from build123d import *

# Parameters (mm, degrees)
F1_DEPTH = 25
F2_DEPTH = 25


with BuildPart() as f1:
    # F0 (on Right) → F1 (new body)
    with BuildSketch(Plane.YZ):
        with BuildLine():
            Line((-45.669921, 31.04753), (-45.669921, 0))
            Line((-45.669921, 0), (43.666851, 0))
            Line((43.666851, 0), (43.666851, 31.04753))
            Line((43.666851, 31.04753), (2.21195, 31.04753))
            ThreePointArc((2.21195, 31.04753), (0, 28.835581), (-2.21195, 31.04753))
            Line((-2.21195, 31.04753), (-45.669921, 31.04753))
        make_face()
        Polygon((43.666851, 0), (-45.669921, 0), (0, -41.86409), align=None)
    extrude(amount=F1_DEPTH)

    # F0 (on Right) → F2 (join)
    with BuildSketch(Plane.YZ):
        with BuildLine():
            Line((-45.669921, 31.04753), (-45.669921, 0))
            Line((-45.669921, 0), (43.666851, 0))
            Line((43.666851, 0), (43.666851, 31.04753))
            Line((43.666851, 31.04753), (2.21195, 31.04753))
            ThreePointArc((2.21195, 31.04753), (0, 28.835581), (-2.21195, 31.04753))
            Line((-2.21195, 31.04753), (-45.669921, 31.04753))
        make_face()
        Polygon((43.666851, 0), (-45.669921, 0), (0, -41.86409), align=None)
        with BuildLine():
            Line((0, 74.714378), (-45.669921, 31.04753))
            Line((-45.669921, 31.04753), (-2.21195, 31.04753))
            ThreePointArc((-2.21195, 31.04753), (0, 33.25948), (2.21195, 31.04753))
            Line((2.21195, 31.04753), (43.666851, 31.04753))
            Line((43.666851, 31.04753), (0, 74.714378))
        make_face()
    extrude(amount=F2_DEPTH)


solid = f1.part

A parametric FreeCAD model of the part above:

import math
import FreeCAD as App
import Part
import Sketcher

V = App.Vector
Q = App.Units.Quantity

doc = App.newDocument("Part")
body = doc.addObject("PartDesign::Body", "Body")

sketch1 = body.newObject("Sketcher::SketchObject", "Sketch")
sketch1.AttachmentSupport = (doc.getObject("YZ_Plane"), [""])
sketch1.MapMode = "FlatFace"
sketch1.addGeometry(Part.LineSegment(V(-45.7, 31, 0), V(-45.7, 0, 0)), False)
sketch1.addGeometry(Part.LineSegment(V(-45.7, 0, 0), V(0, -41.9, 0)), False)
sketch1.addGeometry(Part.LineSegment(V(0, -41.9, 0), V(43.7, 0, 0)), False)
sketch1.addGeometry(Part.LineSegment(V(43.7, 0, 0), V(43.7, 31, 0)), False)
sketch1.addGeometry(Part.LineSegment(V(43.7, 31, 0), V(2.2, 31, 0)), False)
sketch1.addGeometry(Part.ArcOfCircle(Part.Circle(V(0, 31, 0), V(0, 0, 1), 2.2), math.radians(-180), math.radians(0)), False)
sketch1.addGeometry(Part.LineSegment(V(-2.2, 31, 0), V(-45.7, 31, 0)), False)
sketch1.addConstraint(Sketcher.Constraint("Coincident", 0, 2, 1, 1))
sketch1.addConstraint(Sketcher.Constraint("Coincident", 1, 2, 2, 1))
sketch1.addConstraint(Sketcher.Constraint("Coincident", 2, 2, 3, 1))
sketch1.addConstraint(Sketcher.Constraint("Coincident", 3, 2, 4, 1))
sketch1.addConstraint(Sketcher.Constraint("Coincident", 4, 2, 5, 2))
sketch1.addConstraint(Sketcher.Constraint("Coincident", 5, 1, 6, 1))
sketch1.addConstraint(Sketcher.Constraint("Coincident", 6, 2, 0, 1))
sketch1.addConstraint(Sketcher.Constraint("Vertical", 0))
sketch1.addConstraint(Sketcher.Constraint("Vertical", 3))
sketch1.addConstraint(Sketcher.Constraint("Horizontal", 4))
sketch1.addConstraint(Sketcher.Constraint("Horizontal", 6))
sketch1.addConstraint(Sketcher.Constraint("Symmetric", 4, 2, 5, 1, -2))
sketch1.addConstraint(Sketcher.Constraint("PointOnObject", 0, 2, -1))
sketch1.addConstraint(Sketcher.Constraint("PointOnObject", 1, 2, -2))
sketch1.addConstraint(Sketcher.Constraint("PointOnObject", 2, 2, -1))
sketch1.addConstraint(Sketcher.Constraint("Horizontal", 5, 3, 3, 2))
sketch1.addConstraint(Sketcher.Constraint("Radius", 5, 2.21195))
sketch1.addConstraint(Sketcher.Constraint("DistanceX", 4, 2, 4, 1, 41.454901))
sketch1.addConstraint(Sketcher.Constraint("DistanceX", 6, 2, 6, 1, 43.457971))
sketch1.addConstraint(Sketcher.Constraint("DistanceY", 0, 2, 0, 1, 31.04753))
sketch1.addConstraint(Sketcher.Constraint("Distance", 1, 61.954368))
pad1 = body.newObject("PartDesign::Pad", "Pad")
pad1.Profile = sketch1
pad1.Length = 25

sketch2 = body.newObject("Sketcher::SketchObject", "Sketch001")
sketch2.AttachmentSupport = (doc.getObject("YZ_Plane"), [""])
sketch2.MapMode = "FlatFace"
sketch2.addGeometry(Part.LineSegment(V(-45.7, 31, 0), V(-45.7, 0, 0)), False)
sketch2.addGeometry(Part.LineSegment(V(-45.7, 0, 0), V(0, -41.9, 0)), False)
sketch2.addGeometry(Part.LineSegment(V(0, -41.9, 0), V(43.7, 0, 0)), False)
sketch2.addGeometry(Part.LineSegment(V(43.7, 0, 0), V(43.7, 31, 0)), False)
sketch2.addGeometry(Part.LineSegment(V(43.7, 31, 0), V(0, 74.7, 0)), False)
sketch2.addGeometry(Part.LineSegment(V(0, 74.7, 0), V(-45.7, 31, 0)), False)
sketch2.addGeometry(Part.ArcOfCircle(Part.Circle(V(0, 31, 0), V(0, 0, 1), 2.2), math.radians(-180), math.radians(0)), False)
sketch2.addGeometry(Part.ArcOfCircle(Part.Circle(V(0, 31, 0), V(0, 0, 1), 2.2), math.radians(0), math.radians(180)), False)
sketch2.addConstraint(Sketcher.Constraint("Coincident", 0, 2, 1, 1))
sketch2.addConstraint(Sketcher.Constraint("Coincident", 1, 2, 2, 1))
sketch2.addConstraint(Sketcher.Constraint("Coincident", 2, 2, 3, 1))
sketch2.addConstraint(Sketcher.Constraint("Coincident", 3, 2, 4, 1))
sketch2.addConstraint(Sketcher.Constraint("Coincident", 4, 2, 5, 1))
sketch2.addConstraint(Sketcher.Constraint("Coincident", 5, 2, 0, 1))
sketch2.addConstraint(Sketcher.Constraint("Tangent", 6, 1, 7, 2))
sketch2.addConstraint(Sketcher.Constraint("Coincident", 7, 1, 6, 2))
sketch2.addConstraint(Sketcher.Constraint("Vertical", 0))
sketch2.addConstraint(Sketcher.Constraint("Vertical", 3))
sketch2.addConstraint(Sketcher.Constraint("Symmetric", 6, 1, 7, 1, -2))
sketch2.addConstraint(Sketcher.Constraint("PointOnObject", 0, 2, -1))
sketch2.addConstraint(Sketcher.Constraint("PointOnObject", 1, 2, -2))
sketch2.addConstraint(Sketcher.Constraint("PointOnObject", 2, 2, -1))
sketch2.addConstraint(Sketcher.Constraint("PointOnObject", 4, 2, -2))
sketch2.addConstraint(Sketcher.Constraint("Horizontal", 7, 3, 3, 2))
sketch2.addConstraint(Sketcher.Constraint("Horizontal", 3, 2, 5, 2))
sketch2.addConstraint(Sketcher.Constraint("Horizontal", 5, 2, 6, 1))
sketch2.addConstraint(Sketcher.Constraint("Angle", 4, Q("135.000002 deg")))
sketch2.addConstraint(Sketcher.Constraint("Radius", 6, 2.21195))
sketch2.addConstraint(Sketcher.Constraint("DistanceY", 0, 2, 0, 1, 31.04753))
sketch2.addConstraint(Sketcher.Constraint("DistanceX", 6, 1, 3, 2, 45.878801))
sketch2.addConstraint(Sketcher.Constraint("Distance", 1, 61.954368))
sketch2.addConstraint(Sketcher.Constraint("Distance", 2, 60.492941))
pad2 = body.newObject("PartDesign::Pad", "Pad001")
pad2.Profile = sketch2
pad2.Length = 25

doc.recompute()
